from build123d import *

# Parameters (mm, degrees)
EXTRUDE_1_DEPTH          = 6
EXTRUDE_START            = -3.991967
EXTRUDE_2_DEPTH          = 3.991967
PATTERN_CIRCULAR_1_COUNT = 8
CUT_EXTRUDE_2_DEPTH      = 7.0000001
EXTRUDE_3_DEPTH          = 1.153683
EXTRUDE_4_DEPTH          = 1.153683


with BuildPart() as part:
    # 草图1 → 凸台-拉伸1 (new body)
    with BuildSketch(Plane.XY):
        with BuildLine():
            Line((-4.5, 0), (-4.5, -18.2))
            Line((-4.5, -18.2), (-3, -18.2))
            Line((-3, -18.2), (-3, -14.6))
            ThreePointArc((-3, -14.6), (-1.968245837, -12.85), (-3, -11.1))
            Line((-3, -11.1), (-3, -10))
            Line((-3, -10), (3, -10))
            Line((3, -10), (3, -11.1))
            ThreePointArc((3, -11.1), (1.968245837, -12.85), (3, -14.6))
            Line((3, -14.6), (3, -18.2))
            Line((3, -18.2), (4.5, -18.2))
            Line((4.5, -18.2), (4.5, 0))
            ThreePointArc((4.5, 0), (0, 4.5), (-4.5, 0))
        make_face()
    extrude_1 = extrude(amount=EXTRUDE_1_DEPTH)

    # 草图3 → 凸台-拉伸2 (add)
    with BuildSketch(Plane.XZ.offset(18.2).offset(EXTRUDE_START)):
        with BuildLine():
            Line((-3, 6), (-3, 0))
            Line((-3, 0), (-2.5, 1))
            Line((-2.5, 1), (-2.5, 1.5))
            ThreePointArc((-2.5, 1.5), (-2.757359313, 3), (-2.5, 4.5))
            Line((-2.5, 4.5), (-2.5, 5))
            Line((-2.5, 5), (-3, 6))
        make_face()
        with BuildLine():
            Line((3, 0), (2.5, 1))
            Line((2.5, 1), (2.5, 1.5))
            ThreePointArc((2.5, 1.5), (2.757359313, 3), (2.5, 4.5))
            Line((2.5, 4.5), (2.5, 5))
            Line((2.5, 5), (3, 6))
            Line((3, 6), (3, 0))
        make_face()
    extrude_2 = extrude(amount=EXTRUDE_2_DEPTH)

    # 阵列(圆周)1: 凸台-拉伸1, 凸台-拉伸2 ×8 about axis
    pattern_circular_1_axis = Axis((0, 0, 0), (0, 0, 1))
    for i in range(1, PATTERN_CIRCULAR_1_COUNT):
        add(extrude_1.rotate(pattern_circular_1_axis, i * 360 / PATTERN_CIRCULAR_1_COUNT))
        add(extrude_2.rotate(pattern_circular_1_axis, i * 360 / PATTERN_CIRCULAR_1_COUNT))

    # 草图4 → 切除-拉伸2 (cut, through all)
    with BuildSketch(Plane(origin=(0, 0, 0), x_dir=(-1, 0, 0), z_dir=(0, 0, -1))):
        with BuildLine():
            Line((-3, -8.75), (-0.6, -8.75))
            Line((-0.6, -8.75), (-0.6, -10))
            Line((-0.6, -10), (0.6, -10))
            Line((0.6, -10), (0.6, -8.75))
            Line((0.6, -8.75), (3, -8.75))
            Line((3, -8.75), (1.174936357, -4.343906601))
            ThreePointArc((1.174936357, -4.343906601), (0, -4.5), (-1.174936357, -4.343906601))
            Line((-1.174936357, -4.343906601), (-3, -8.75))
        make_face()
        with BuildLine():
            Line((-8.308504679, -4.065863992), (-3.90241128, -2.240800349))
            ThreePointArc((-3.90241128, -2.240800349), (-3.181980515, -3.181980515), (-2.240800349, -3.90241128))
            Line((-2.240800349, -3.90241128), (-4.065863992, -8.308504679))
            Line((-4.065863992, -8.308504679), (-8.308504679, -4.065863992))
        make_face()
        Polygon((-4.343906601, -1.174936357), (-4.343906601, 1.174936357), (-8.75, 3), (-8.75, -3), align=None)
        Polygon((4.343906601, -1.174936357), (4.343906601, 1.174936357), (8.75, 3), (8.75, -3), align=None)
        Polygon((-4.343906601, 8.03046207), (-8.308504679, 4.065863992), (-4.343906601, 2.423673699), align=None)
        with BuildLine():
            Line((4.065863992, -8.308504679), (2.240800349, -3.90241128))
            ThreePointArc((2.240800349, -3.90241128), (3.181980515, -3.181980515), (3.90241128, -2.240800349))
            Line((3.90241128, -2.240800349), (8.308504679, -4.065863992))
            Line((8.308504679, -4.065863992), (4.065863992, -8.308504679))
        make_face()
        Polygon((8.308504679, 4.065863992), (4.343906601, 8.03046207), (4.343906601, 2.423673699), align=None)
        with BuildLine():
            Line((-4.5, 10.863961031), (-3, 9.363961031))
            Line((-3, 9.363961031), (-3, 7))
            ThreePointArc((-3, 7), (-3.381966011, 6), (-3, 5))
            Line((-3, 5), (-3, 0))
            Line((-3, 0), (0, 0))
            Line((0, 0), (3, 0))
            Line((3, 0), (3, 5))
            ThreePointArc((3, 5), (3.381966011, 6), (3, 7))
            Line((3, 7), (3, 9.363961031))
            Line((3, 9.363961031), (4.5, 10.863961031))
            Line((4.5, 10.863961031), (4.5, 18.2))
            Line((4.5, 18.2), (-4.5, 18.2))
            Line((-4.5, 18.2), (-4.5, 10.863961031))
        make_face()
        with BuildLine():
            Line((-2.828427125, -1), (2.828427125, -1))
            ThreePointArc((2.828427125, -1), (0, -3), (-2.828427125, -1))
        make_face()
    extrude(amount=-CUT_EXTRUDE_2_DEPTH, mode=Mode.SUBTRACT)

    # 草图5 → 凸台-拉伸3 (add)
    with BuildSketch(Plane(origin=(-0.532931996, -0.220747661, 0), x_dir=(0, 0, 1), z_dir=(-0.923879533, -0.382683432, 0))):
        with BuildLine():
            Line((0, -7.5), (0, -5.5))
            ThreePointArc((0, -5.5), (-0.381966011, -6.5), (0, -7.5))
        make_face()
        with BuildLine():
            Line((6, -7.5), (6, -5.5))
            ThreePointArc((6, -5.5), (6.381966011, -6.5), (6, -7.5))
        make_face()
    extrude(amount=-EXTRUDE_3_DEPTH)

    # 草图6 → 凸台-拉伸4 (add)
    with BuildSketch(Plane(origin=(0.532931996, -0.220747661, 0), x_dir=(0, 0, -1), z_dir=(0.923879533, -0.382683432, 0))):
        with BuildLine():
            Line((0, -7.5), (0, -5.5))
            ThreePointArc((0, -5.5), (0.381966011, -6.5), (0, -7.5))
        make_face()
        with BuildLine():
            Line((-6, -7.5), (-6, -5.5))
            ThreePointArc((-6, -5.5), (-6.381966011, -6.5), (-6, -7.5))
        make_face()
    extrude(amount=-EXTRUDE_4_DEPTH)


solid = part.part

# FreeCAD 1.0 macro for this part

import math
import FreeCAD as App
import Part
import Sketcher
Q = App.Units.Quantity

doc = App.newDocument("Part")
params = doc.addObject("Spreadsheet::Sheet", "Params")
for row, (alias, value) in enumerate([
    ("sketch1_radius", "2 mm"),
    ("sketch1_radius2", "4.5 mm"),
    ("sketch1_width", "6 mm"),
    ("sketch1_height", "18.2 mm"),
    ("sketch1_height2", "3.6 mm"),
    ("pad1_length", "6 mm"),
    ("sketch2_radius", "4.5 mm"),
    ("sketch2_height", "6 mm"),
    ("sketch2_height2", "0.5 mm"),
    ("pad2_length", "3.991967 mm"),
    ("sketch3_radius", "3 mm"),
    ("sketch3_radius2", "4.5 mm"),
    ("sketch3_radius3", "1.5 mm"),
    ("sketch3_width", "6 mm"),
    ("sketch3_width2", "9 mm"),
    ("sketch4_radius", "1.5 mm"),
    ("sketch4_height", "2 mm"),
    ("pad3_length", "1.153683 mm"),
    ("sketch5_radius", "1.5 mm"),
    ("sketch5_height", "2 mm"),
    ("pad4_length", "1.153683 mm"),
], start=1):
    params.set(f"A{row}", alias)
    params.set(f"B{row}", "=" + value)
    params.setAlias(f"B{row}", alias)

body = doc.addObject("PartDesign::Body", "Body")

# Sketch on XY plane
sketch1 = body.newObject("Sketcher::SketchObject", "Sketch")
sketch1.AttachmentSupport = (doc.getObject("XY_Plane"), [""])
sketch1.MapMode = "FlatFace"
sketch1.addGeometry(Part.LineSegment(App.Vector(-4.5, 0, 0), App.Vector(-4.5, -18.2, 0)), False)
sketch1.addGeometry(Part.LineSegment(App.Vector(-4.5, -18.2, 0), App.Vector(-3, -18.2, 0)), False)
sketch1.addGeometry(Part.LineSegment(App.Vector(-3, -18.2, 0), App.Vector(-3, -14.6, 0)), False)
sketch1.addGeometry(Part.ArcOfCircle(Part.Circle(App.Vector(-3.968246, -12.85, 0), App.Vector(0, 0, 1), 2), math.radians(-61.044976), math.radians(61.044976)), False)
sketch1.addGeometry(Part.LineSegment(App.Vector(-3, -11.1, 0), App.Vector(-3, -10, 0)), False)
sketch1.addGeometry(Part.LineSegment(App.Vector(-3, -10, 0), App.Vector(3, -10, 0)), False)
sketch1.addGeometry(Part.LineSegment(App.Vector(3, -10, 0), App.Vector(3, -11.1, 0)), False)
sketch1.addGeometry(Part.ArcOfCircle(Part.Circle(App.Vector(3.968246, -12.85, 0), App.Vector(0, 0, 1), 2), math.radians(118.955024), math.radians(241.044976)), False)
sketch1.addGeometry(Part.LineSegment(App.Vector(3, -14.6, 0), App.Vector(3, -18.2, 0)), False)
sketch1.addGeometry(Part.LineSegment(App.Vector(3, -18.2, 0), App.Vector(4.5, -18.2, 0)), False)
sketch1.addGeometry(Part.LineSegment(App.Vector(4.5, -18.2, 0), App.Vector(4.5, 0, 0)), False)
sketch1.addGeometry(Part.ArcOfCircle(Part.Circle(App.Vector(0, 0, 0), App.Vector(0, 0, 1), 4.5), math.radians(0), math.radians(180)), False)
sketch1.addConstraint(Sketcher.Constraint("Coincident", 0, 2, 1, 1))
sketch1.addConstraint(Sketcher.Constraint("Coincident", 1, 2, 2, 1))
sketch1.addConstraint(Sketcher.Constraint("Coincident", 2, 2, 3, 1))
sketch1.addConstraint(Sketcher.Constraint("Coincident", 3, 2, 4, 1))
sketch1.addConstraint(Sketcher.Constraint("Coincident", 4, 2, 5, 1))
sketch1.addConstraint(Sketcher.Constraint("Coincident", 5, 2, 6, 1))
sketch1.addConstraint(Sketcher.Constraint("Coincident", 6, 2, 7, 1))
sketch1.addConstraint(Sketcher.Constraint("Coincident", 7, 2, 8, 1))
sketch1.addConstraint(Sketcher.Constraint("Coincident", 8, 2, 9, 1))
sketch1.addConstraint(Sketcher.Constraint("Coincident", 9, 2, 10, 1))
sketch1.addConstraint(Sketcher.Constraint("Tangent", 10, 2, 11, 1))
sketch1.addConstraint(Sketcher.Constraint("Tangent", 11, 2, 0, 1))
sketch1.addConstraint(Sketcher.Constraint("Vertical", 0))
sketch1.addConstraint(Sketcher.Constraint("Horizontal", 1))
sketch1.addConstraint(Sketcher.Constraint("Vertical", 2))
sketch1.addConstraint(Sketcher.Constraint("Vertical", 4))
sketch1.addConstraint(Sketcher.Constraint("Horizontal", 5))
sketch1.addConstraint(Sketcher.Constraint("Vertical", 6))
sketch1.addConstraint(Sketcher.Constraint("Vertical", 8))
sketch1.addConstraint(Sketcher.Constraint("Horizontal", 9))
sketch1.addConstraint(Sketcher.Constraint("Vertical", 10))
sketch1.addConstraint(Sketcher.Constraint("Coincident", 11, 3, -1, 1))
sketch1.addConstraint(Sketcher.Constraint("Equal", 3, 7))
sketch1.addConstraint(Sketcher.Constraint("Symmetric", 3, 3, 7, 3, -2))
sketch1.addConstraint(Sketcher.Constraint("Symmetric", 1, 2, 8, 2, -2))
sketch1.addConstraint(Sketcher.Constraint("Horizontal", 3, 2, 6, 2))
sketch1.addConstraint(Sketcher.Constraint("Vertical", 2, 2, 3, 2))
sketch1.addConstraint(Sketcher.Constraint("Radius", 3, 2.0))
sketch1.addConstraint(Sketcher.Constraint("Radius", 11, 4.5))
sketch1.addConstraint(Sketcher.Constraint("DistanceX", 5, 1, 5, 2, 6.0))
sketch1.addConstraint(Sketcher.Constraint("DistanceY", 0, 2, 0, 1, 18.2))
sketch1.addConstraint(Sketcher.Constraint("DistanceY", 2, 1, 2, 2, 3.6))
sketch1.addConstraint(Sketcher.Constraint("DistanceY", 4, 1, 4, 2, 1.1))
sketch1.addConstraint(Sketcher.Constraint("DistanceY", 4, 2, -1, 1, 10.0))
sketch1.setExpression("Constraints[27]", "Params.sketch1_radius")
sketch1.setExpression("Constraints[28]", "Params.sketch1_radius2")
sketch1.setExpression("Constraints[29]", "Params.sketch1_width")
sketch1.setExpression("Constraints[30]", "Params.sketch1_height")
sketch1.setExpression("Constraints[31]", "Params.sketch1_height2")
pad1 = body.newObject("PartDesign::Pad", "Pad")
pad1.Profile = sketch1
pad1.setExpression("Length", "Params.pad1_length")

# Sketch on XZ plane
sketch2 = body.newObject("Sketcher::SketchObject", "Sketch001")
sketch2.AttachmentSupport = (doc.getObject("XZ_Plane"), [""])
sketch2.MapMode = "FlatFace"
sketch2.AttachmentOffset = App.Placement(App.Vector(0, 0, 14.208033), App.Rotation())
sketch2.addGeometry(Part.LineSegment(App.Vector(-3, 6, 0), App.Vector(-3, 0, 0)), False)
sketch2.addGeometry(Part.LineSegment(App.Vector(-3, 0, 0), App.Vector(-2.5, 1, 0)), False)
sketch2.addGeometry(Part.LineSegment(App.Vector(-2.5, 1, 0), App.Vector(-2.5, 1.5, 0)), False)
sketch2.addGeometry(Part.ArcOfCircle(Part.Circle(App.Vector(1.742641, 3, 0), App.Vector(0, 0, 1), 4.5), math.radians(160.528779), math.radians(199.471221)), False)
sketch2.addGeometry(Part.LineSegment(App.Vector(-2.5, 4.5, 0), App.Vector(-2.5, 5, 0)), False)
sketch2.addGeometry(Part.LineSegment(App.Vector(-2.5, 5, 0), App.Vector(-3, 6, 0)), False)
sketch2.addGeometry(Part.LineSegment(App.Vector(2.5, 1, 0), App.Vector(3, 0, 0)), False)
sketch2.addGeometry(Part.LineSegment(App.Vector(3, 0, 0), App.Vector(3, 6, 0)), False)
sketch2.addGeometry(Part.LineSegment(App.Vector(3, 6, 0), App.Vector(2.5, 5, 0)), False)
sketch2.addGeometry(Part.LineSegment(App.Vector(2.5, 5, 0), App.Vector(2.5, 4.5, 0)), False)
sketch2.addGeometry(Part.ArcOfCircle(Part.Circle(App.Vector(-1.742641, 3, 0), App.Vector(0, 0, 1), 4.5), math.radians(-19.471221), math.radians(19.471221)), False)
sketch2.addGeometry(Part.LineSegment(App.Vector(2.5, 1.5, 0), App.Vector(2.5, 1, 0)), False)
sketch2.addConstraint(Sketcher.Constraint("Coincident", 0, 2, 1, 1))
sketch2.addConstraint(Sketcher.Constraint("Coincident", 1, 2, 2, 1))
sketch2.addConstraint(Sketcher.Constraint("Coincident", 2, 2, 3, 2))
sketch2.addConstraint(Sketcher.Constraint("Coincident", 3, 1, 4, 1))
sketch2.addConstraint(Sketcher.Constraint("Coincident", 4, 2, 5, 1))
sketch2.addConstraint(Sketcher.Constraint("Coincident", 5, 2, 0, 1))
sketch2.addConstraint(Sketcher.Constraint("Coincident", 6, 2, 7, 1))
sketch2.addConstraint(Sketcher.Constraint("Coincident", 7, 2, 8, 1))
sketch2.addConstraint(Sketcher.Constraint("Coincident", 8, 2, 9, 1))
sketch2.addConstraint(Sketcher.Constraint("Coincident", 9, 2, 10, 2))
sketch2.addConstraint(Sketcher.Constraint("Coincident", 10, 1, 11, 1))
sketch2.addConstraint(Sketcher.Constraint("Coincident", 11, 2, 6, 1))
sketch2.addConstraint(Sketcher.Constraint("Vertical", 0))
sketch2.addConstraint(Sketcher.Constraint("Vertical", 2))
sketch2.addConstraint(Sketcher.Constraint("Vertical", 4))
sketch2.addConstraint(Sketcher.Constraint("Vertical", 7))
sketch2.addConstraint(Sketcher.Constraint("Vertical", 9))
sketch2.addConstraint(Sketcher.Constraint("Vertical", 11))
sketch2.addConstraint(Sketcher.Constraint("Equal", 3, 10))
sketch2.addConstraint(Sketcher.Constraint("Symmetric", 0, 2, 6, 2, -1, 1))
sketch2.addConstraint(Sketcher.Constraint("Symmetric", 3, 3, 10, 3, -2))
sketch2.addConstraint(Sketcher.Constraint("Symmetric", 4, 2, 8, 2, -2))
sketch2.addConstraint(Sketcher.Constraint("Symmetric", 1, 2, 11, 2, -2))
sketch2.addConstraint(Sketcher.Constraint("PointOnObject", 0, 2, -1))
sketch2.addConstraint(Sketcher.Constraint("Parallel", 5, 6))
sketch2.addConstraint(Sketcher.Constraint("Parallel", 1, 8))
sketch2.addConstraint(Sketcher.Constraint("Vertical", 2, 2, 3, 1))
sketch2.addConstraint(Sketcher.Constraint("Equal", 2, 4))
sketch2.addConstraint(Sketcher.Constraint("Radius", 3, 4.5))
sketch2.addConstraint(Sketcher.Constraint("DistanceY", 0, 2, 0, 1, 6.0))
sketch2.addConstraint(Sketcher.Constraint("DistanceY", 2, 1, 2, 2, 0.5))
sketch2.addConstraint(Sketcher.Constraint("DistanceX", 0, 2, -1, 1, 3.0))
sketch2.addConstraint(Sketcher.Constraint("DistanceY", -1, 1, 1, 2, 1.0))
sketch2.addConstraint(Sketcher.Constraint("DistanceX", 4, 2, 8, 2, 5.0))
sketch2.setExpression("Constraints[28]", "Params.sketch2_radius")
sketch2.setExpression("Constraints[29]", "Params.sketch2_height")
sketch2.setExpression("Constraints[30]", "Params.sketch2_height2")
pad2 = body.newObject("PartDesign::Pad", "Pad001")
pad2.Profile = sketch2
pad2.setExpression("Length", "Params.pad2_length")
doc.recompute()

polarpattern = body.newObject("PartDesign::PolarPattern", "PolarPattern")
polarpattern.Originals = [pad1, pad2]
polarpattern.Axis = (doc.getObject("Z_Axis"), [""])
polarpattern.Angle = 360
polarpattern.Occurrences = 8
body.Tip = polarpattern

# Sketch on XY plane
sketch3 = body.newObject("Sketcher::SketchObject", "Sketch002")
sketch3.AttachmentSupport = (doc.getObject("XY_Plane"), [""])
sketch3.MapMode = "FlatFace"
sketch3.addGeometry(Part.LineSegment(App.Vector(3, -8.75, 0), App.Vector(0.6, -8.75, 0)), False)
sketch3.addGeometry(Part.LineSegment(App.Vector(0.6, -8.75, 0), App.Vector(0.6, -10, 0)), False)
sketch3.addGeometry(Part.LineSegment(App.Vector(0.6, -10, 0), App.Vector(-0.6, -10, 0)), False)
sketch3.addGeometry(Part.LineSegment(App.Vector(-0.6, -10, 0), App.Vector(-0.6, -8.75, 0)), False)
sketch3.addGeometry(Part.LineSegment(App.Vector(-0.6, -8.75, 0), App.Vector(-3, -8.75, 0)), False)
sketch3.addGeometry(Part.LineSegment(App.Vector(-3, -8.75, 0), App.Vector(-1.174936, -4.343907, 0)), False)
sketch3.addGeometry(Part.ArcOfCircle(Part.Circle(App.Vector(0, 0, 0), App.Vector(0, 0, 1), 4.5), math.radians(-105.135162), math.radians(-74.864838)), False)
sketch3.addGeometry(Part.LineSegment(App.Vector(1.174936, -4.343907, 0), App.Vector(3, -8.75, 0)), False)
sketch3.addGeometry(Part.LineSegment(App.Vector(3.902411, -2.2408, 0), App.Vector(8.308505, -4.065864, 0)), False)
sketch3.addGeometry(Part.LineSegment(App.Vector(8.308505, -4.065864, 0), App.Vector(4.065864, -8.308505, 0)), False)
sketch3.addGeometry(Part.LineSegment(App.Vector(4.065864, -8.308505, 0), App.Vector(2.2408, -3.902411, 0)), False)
sketch3.addGeometry(Part.ArcOfCircle(Part.Circle(App.Vector(0, 0, 0), App.Vector(0, 0, 1), 4.5), math.radians(-60.135162), math.radians(-29.864838)), False)
sketch3.addGeometry(Part.LineSegment(App.Vector(4.343907, -1.174936, 0), App.Vector(4.343907, 1.174936, 0)), False)
sketch3.addGeometry(Part.LineSegment(App.Vector(4.343907, 1.174936, 0), App.Vector(8.75, 3, 0)), False)
sketch3.addGeometry(Part.LineSegment(App.Vector(8.75, 3, 0), App.Vector(8.75, -3, 0)), False)
sketch3.addGeometry(Part.LineSegment(App.Vector(8.75, -3, 0), App.Vector(4.343907, -1.174936, 0)), False)
sketch3.addGeometry(Part.LineSegment(App.Vector(-4.343907, 1.174936, 0), App.Vector(-4.343907, -1.174936, 0)), False)
sketch3.addGeometry(Part.LineSegment(App.Vector(-4.343907, -1.174936, 0), App.Vector(-8.75, -3, 0)), False)
sketch3.addGeometry(Part.LineSegment(App.Vector(-8.75, -3, 0), App.Vector(-8.75, 3, 0)), False)
sketch3.addGeometry(Part.LineSegment(App.Vector(-8.75, 3, 0), App.Vector(-4.343907, 1.174936, 0)), False)
sketch3.addGeometry(Part.LineSegment(App.Vector(4.343907, 8.030462, 0), App.Vector(8.308505, 4.065864, 0)), False)
sketch3.addGeometry(Part.LineSegment(App.Vector(8.308505, 4.065864, 0), App.Vector(4.343907, 2.423674, 0)), False)
sketch3.addGeometry(Part.LineSegment(App.Vector(4.343907, 2.423674, 0), App.Vector(4.343907, 8.030462, 0)), False)
sketch3.addGeometry(Part.LineSegment(App.Vector(-2.2408, -3.902411, 0), App.Vector(-4.065864, -8.308505, 0)), False)
sketch3.addGeometry(Part.LineSegment(App.Vector(-4.065864, -8.308505, 0), App.Vector(-8.308505, -4.065864, 0)), False)
sketch3.addGeometry(Part.LineSegment(App.Vector(-8.308505, -4.065864, 0), App.Vector(-3.902411, -2.2408, 0)), False)
sketch3.addGeometry(Part.ArcOfCircle(Part.Circle(App.Vector(0, 0, 0), App.Vector(0, 0, 1), 4.5), math.radians(-150.135162), math.radians(-119.864838)), False)
sketch3.addGeometry(Part.LineSegment(App.Vector(-8.308505, 4.065864, 0), App.Vector(-4.343907, 8.030462, 0)), False)
sketch3.addGeometry(Part.LineSegment(App.Vector(-4.343907, 8.030462, 0), App.Vector(-4.343907, 2.423674, 0)), False)
sketch3.addGeometry(Part.LineSegment(App.Vector(-4.343907, 2.423674, 0), App.Vector(-8.308505, 4.065864, 0)), False)
sketch3.addGeometry(Part.LineSegment(App.Vector(4.5, 10.863961, 0), App.Vector(3, 9.363961, 0)), False)
sketch3.addGeometry(Part.LineSegment(App.Vector(3, 9.363961, 0), App.Vector(3, 7, 0)), False)
sketch3.addGeometry(Part.ArcOfCircle(Part.Circle(App.Vector(1.881966, 6, 0), App.Vector(0, 0, 1), 1.5), math.radians(-41.810315), math.radians(41.810315)), False)
sketch3.addGeometry(Part.LineSegment(App.Vector(3, 5, 0), App.Vector(3, 0, 0)), False)
sketch3.addGeometry(Part.LineSegment(App.Vector(3, 0, 0), App.Vector(-3, 0, 0)), False)
sketch3.addGeometry(Part.LineSegment(App.Vector(-3, 0, 0), App.Vector(-3, 5, 0)), False)
sketch3.addGeometry(Part.ArcOfCircle(Part.Circle(App.Vector(-1.881966, 6, 0), App.Vector(0, 0, 1), 1.5), math.radians(138.189685), math.radians(221.810315)), False)
sketch3.addGeometry(Part.LineSegment(App.Vector(-3, 7, 0), App.Vector(-3, 9.363961, 0)), False)
sketch3.addGeometry(Part.LineSegment(App.Vector(-3, 9.363961, 0), App.Vector(-4.5, 10.863961, 0)), False)
sketch3.addGeometry(Part.LineSegment(App.Vector(-4.5, 10.863961, 0), App.Vector(-4.5, 18.2, 0)), False)
sketch3.addGeometry(Part.LineSegment(App.Vector(-4.5, 18.2, 0), App.Vector(4.5, 18.2, 0)), False)
sketch3.addGeometry(Part.LineSegment(App.Vector(4.5, 18.2, 0), App.Vector(4.5, 10.863961, 0)), False)
sketch3.addGeometry(Part.LineSegment(App.Vector(-2.828427, -1, 0), App.Vector(2.828427, -1, 0)), False)
sketch3.addGeometry(Part.ArcOfCircle(Part.Circle(App.Vector(0, 0, 0), App.Vector(0, 0, 1), 3), math.radians(-160.528779), math.radians(-19.471221)), False)
sketch3.addConstraint(Sketcher.Constraint("Coincident", 0, 2, 1, 1))
sketch3.addConstraint(Sketcher.Constraint("Coincident", 1, 2, 2, 1))
sketch3.addConstraint(Sketcher.Constraint("Coincident", 2, 2, 3, 1))
sketch3.addConstraint(Sketcher.Constraint("Coincident", 3, 2, 4, 1))
sketch3.addConstraint(Sketcher.Constraint("Coincident", 4, 2, 5, 1))
sketch3.addConstraint(Sketcher.Constraint("Coincident", 5, 2, 6, 1))
sketch3.addConstraint(Sketcher.Constraint("Coincident", 6, 2, 7, 1))
sketch3.addConstraint(Sketcher.Constraint("Coincident", 7, 2, 0, 1))
sketch3.addConstraint(Sketcher.Constraint("Coincident", 8, 2, 9, 1))
sketch3.addConstraint(Sketcher.Constraint("Coincident", 9, 2, 10, 1))
sketch3.addConstraint(Sketcher.Constraint("Coincident", 10, 2, 11, 1))
sketch3.addConstraint(Sketcher.Constraint("Coincident", 11, 2, 8, 1))
sketch3.addConstraint(Sketcher.Constraint("Coincident", 12, 2, 13, 1))
sketch3.addConstraint(Sketcher.Constraint("Coincident", 13, 2, 14, 1))
sketch3.addConstraint(Sketcher.Constraint("Coincident", 14, 2, 15, 1))
sketch3.addConstraint(Sketcher.Constraint("Coincident", 15, 2, 12, 1))
sketch3.addConstraint(Sketcher.Constraint("Coincident", 16, 2, 17, 1))
sketch3.addConstraint(Sketcher.Constraint("Coincident", 17, 2, 18, 1))
sketch3.addConstraint(Sketcher.Constraint("Coincident", 18, 2, 19, 1))
sketch3.addConstraint(Sketcher.Constraint("Coincident", 19, 2, 16, 1))
sketch3.addConstraint(Sketcher.Constraint("Coincident", 20, 2, 21, 1))
sketch3.addConstraint(Sketcher.Constraint("Coincident", 21, 2, 22, 1))
sketch3.addConstraint(Sketcher.Constraint("Coincident", 22, 2, 20, 1))
sketch3.addConstraint(Sketcher.Constraint("Coincident", 23, 2, 24, 1))
sketch3.addConstraint(Sketcher.Constraint("Coincident", 24, 2, 25, 1))
sketch3.addConstraint(Sketcher.Constraint("Coincident", 25, 2, 26, 1))
sketch3.addConstraint(Sketcher.Constraint("Coincident", 26, 2, 23, 1))
sketch3.addConstraint(Sketcher.Constraint("Coincident", 27, 2, 28, 1))
sketch3.addConstraint(Sketcher.Constraint("Coincident", 28, 2, 29, 1))
sketch3.addConstraint(Sketcher.Constraint("Coincident", 29, 2, 27, 1))
sketch3.addConstraint(Sketcher.Constraint("Coincident", 30, 2, 31, 1))
sketch3.addConstraint(Sketcher.Constraint("Coincident", 31, 2, 32, 2))
sketch3.addConstraint(Sketcher.Constraint("Coincident", 32, 1, 33, 1))
sketch3.addConstraint(Sketcher.Constraint("Coincident", 33, 2, 34, 1))
sketch3.addConstraint(Sketcher.Constraint("Coincident", 34, 2, 35, 1))
sketch3.addConstraint(Sketcher.Constraint("Coincident", 35, 2, 36, 2))
sketch3.addConstraint(Sketcher.Constraint("Coincident", 36, 1, 37, 1))
sketch3.addConstraint(Sketcher.Constraint("Coincident", 37, 2, 38, 1))
sketch3.addConstraint(Sketcher.Constraint("Coincident", 38, 2, 39, 1))
sketch3.addConstraint(Sketcher.Constraint("Coincident", 39, 2, 40, 1))
sketch3.addConstraint(Sketcher.Constraint("Coincident", 40, 2, 41, 1))
sketch3.addConstraint(Sketcher.Constraint("Coincident", 41, 2, 30, 1))
sketch3.addConstraint(Sketcher.Constraint("Coincident", 42, 1, 43, 1))
sketch3.addConstraint(Sketcher.Constraint("Coincident", 43, 2, 42, 2))
sketch3.addConstraint(Sketcher.Constraint("Horizontal", 0))
sketch3.addConstraint(Sketcher.Constraint("Vertical", 1))
sketch3.addConstraint(Sketcher.Constraint("Horizontal", 2))
sketch3.addConstraint(Sketcher.Constraint("Vertical", 3))
sketch3.addConstraint(Sketcher.Constraint("Horizontal", 4))
sketch3.addConstraint(Sketcher.Constraint("Vertical", 12))
sketch3.addConstraint(Sketcher.Constraint("Vertical", 14))
sketch3.addConstraint(Sketcher.Constraint("Vertical", 16))
sketch3.addConstraint(Sketcher.Constraint("Vertical", 18))
sketch3.addConstraint(Sketcher.Constraint("Vertical", 22))
sketch3.addConstraint(Sketcher.Constraint("Vertical", 28))
sketch3.addConstraint(Sketcher.Constraint("Vertical", 31))
sketch3.addConstraint(Sketcher.Constraint("Vertical", 33))
sketch3.addConstraint(Sketcher.Constraint("Horizontal", 34))
sketch3.addConstraint(Sketcher.Constraint("Vertical", 35))
sketch3.addConstraint(Sketcher.Constraint("Vertical", 37))
sketch3.addConstraint(Sketcher.Constraint("Vertical", 39))
sketch3.addConstraint(Sketcher.Constraint("Horizontal", 40))
sketch3.addConstraint(Sketcher.Constraint("Vertical", 41))
sketch3.addConstraint(Sketcher.Constraint("Horizontal", 42))
sketch3.addConstraint(Sketcher.Constraint("Coincident", 6, 3, -1, 1))
sketch3.addConstraint(Sketcher.Constraint("Coincident", 11, 3, -1, 1))
sketch3.addConstraint(Sketcher.Constraint("Coincident", 26, 3, -1, 1))
sketch3.addConstraint(Sketcher.Constraint("Coincident", 43, 3, -1, 1))
sketch3.addConstraint(Sketcher.Constraint("Equal", 6, 11))
sketch3.addConstraint(Sketcher.Constraint("Equal", 11, 26))
sketch3.addConstraint(Sketcher.Constraint("Equal", 32, 36))
sketch3.addConstraint(Sketcher.Constraint("Symmetric", 12, 2, 16, 2, -1, 1))
sketch3.addConstraint(Sketcher.Constraint("Symmetric", 13, 2, 17, 2, -1, 1))
sketch3.addConstraint(Sketcher.Constraint("Symmetric", 20, 2, 24, 2, -1, 1))
sketch3.addConstraint(Sketcher.Constraint("Symmetric", 8, 2, 29, 2, -1, 1))
sketch3.addConstraint(Sketcher.Constraint("Symmetric", 33, 2, 34, 2, -1, 1))
sketch3.addConstraint(Sketcher.Constraint("Symmetric", 32, 3, 36, 3, -2))
sketch3.addConstraint(Sketcher.Constraint("Symmetric", 0, 2, 3, 2, -2))
sketch3.addConstraint(Sketcher.Constraint("Symmetric", 9, 2, 23, 2, -2))
sketch3.addConstraint(Sketcher.Constraint("Symmetric", 8, 2, 24, 2, -2))
sketch3.addConstraint(Sketcher.Constraint("Symmetric", 22, 2, 27, 2, -2))
sketch3.addConstraint(Sketcher.Constraint("Symmetric", 30, 2, 37, 2, -2))
sketch3.addConstraint(Sketcher.Constraint("Symmetric", 38, 2, 41, 2, -2))
sketch3.addConstraint(Sketcher.Constraint("Perpendicular", 5, 8))
sketch3.addConstraint(Sketcher.Constraint("Parallel", 7, 10))
sketch3.addConstraint(Sketcher.Constraint("Perpendicular", 10, 13))
sketch3.addConstraint(Sketcher.Constraint("Parallel", 8, 15))
sketch3.addConstraint(Sketcher.Constraint("Parallel", 15, 19))
sketch3.addConstraint(Sketcher.Constraint("Perpendicular", 9, 20))
sketch3.addConstraint(Sketcher.Constraint("Parallel", 17, 21))
sketch3.addConstraint(Sketcher.Constraint("Perpendicular", 19, 23))
sketch3.addConstraint(Sketcher.Constraint("Parallel", 20, 24))
sketch3.addConstraint(Sketcher.Constraint("Parallel", 21, 25))
sketch3.addConstraint(Sketcher.Constraint("Perpendicular", 23, 29))
sketch3.addConstraint(Sketcher.Constraint("Parallel", 27, 30))
sketch3.addConstraint(Sketcher.Constraint("Horizontal", 5, 2, 6, 2))
sketch3.addConstraint(Sketcher.Constraint("Horizontal", 15, 2, 16, 2))
sketch3.addConstraint(Sketcher.Constraint("Horizontal", 14, 2, 17, 2))
sketch3.addConstraint(Sketcher.Constraint("Horizontal", 13, 2, 18, 2))
sketch3.addConstraint(Sketcher.Constraint("Vertical", 15, 2, 21, 2))
sketch3.addConstraint(Sketcher.Constraint("Vertical", 7, 2, 30, 2))
sketch3.addConstraint(Sketcher.Constraint("Vertical", 31, 2, 32, 1))
sketch3.addConstraint(Sketcher.Constraint("Equal", 34, 14))
sketch3.addConstraint(Sketcher.Constraint("Equal", 7, 8))
sketch3.addConstraint(Sketcher.Constraint("Equal", 8, 10))
sketch3.addConstraint(Sketcher.Constraint("Equal", 10, 13))
sketch3.addConstraint(Sketcher.Constraint("Radius", 43, 3.0))
sketch3.addConstraint(Sketcher.Constraint("Radius", 6, 4.5))
sketch3.addConstraint(Sketcher.Constraint("Radius", 32, 1.5))
sketch3.addConstraint(Sketcher.Constraint("DistanceX", 34, 2, 34, 1, 6.0))
sketch3.addConstraint(Sketcher.Constraint("DistanceX", 40, 1, 40, 2, 9.0))
sketch3.addConstraint(Sketcher.Constraint("DistanceY", 33, 2, 33, 1, 5.0))
sketch3.addConstraint(Sketcher.Constraint("Distance", 9, 6.0))
sketch3.addConstraint(Sketcher.Constraint("DistanceX", 0, 2, 0, 1, 2.4))
sketch3.addConstraint(Sketcher.Constraint("DistanceY", -1, 1, 32, 3, 6.0))
sketch3.addConstraint(Sketcher.Constraint("DistanceY", 1, 2, -1, 1, 10.0))
sketch3.addConstraint(Sketcher.Constraint("DistanceY", 42, 1, -1, 1, 1.0))
sketch3.addConstraint(Sketcher.Constraint("Angle", 5, Q("67.5 deg")))
sketch3.addConstraint(Sketcher.Constraint("DistanceY", 1, 2, 1, 1, 1.25))
sketch3.addConstraint(Sketcher.Constraint("DistanceY", -1, 1, 39, 2, 18.2))
sketch3.addConstraint(Sketcher.Constraint("DistanceX", -1, 1, 13, 2, 8.75))
sketch3.addConstraint(Sketcher.Constraint("DistanceY", 31, 2, 31, 1, 2.363961))
sketch3.setExpression("Constraints[106]", "Params.sketch3_radius")
sketch3.setExpression("Constraints[107]", "Params.sketch3_radius2")
sketch3.setExpression("Constraints[108]", "Params.sketch3_radius3")
sketch3.setExpression("Constraints[109]", "Params.sketch3_width")
sketch3.setExpression("Constraints[110]", "Params.sketch3_width2")
pocket1 = body.newObject("PartDesign::Pocket", "Pocket")
pocket1.Profile = sketch3
pocket1.Type = "ThroughAll"
pocket1.Reversed = True

# Sketch on an angled plane
sketch4 = body.newObject("Sketcher::SketchObject", "Sketch003")
sketch4.Placement = App.Placement(App.Vector(-0.532932, -0.220748, 0), App.Rotation(App.Vector(0, 0, 1), App.Vector(-0.382683432, 0.923879533, 0), App.Vector(-0.923879533, -0.382683432, 0), "ZXY"))
sketch4.addGeometry(Part.LineSegment(App.Vector(0, -7.5, 0), App.Vector(0, -5.5, 0)), False)
sketch4.addGeometry(Part.ArcOfCircle(Part.Circle(App.Vector(1.118034, -6.5, 0), App.Vector(0, 0, 1), 1.5), math.radians(138.189685), math.radians(221.810315)), False)
sketch4.addGeometry(Part.LineSegment(App.Vector(6, -5.5, 0), App.Vector(6, -7.5, 0)), False)
sketch4.addGeometry(Part.ArcOfCircle(Part.Circle(App.Vector(4.881966, -6.5, 0), App.Vector(0, 0, 1), 1.5), math.radians(-41.810315), math.radians(41.810315)), False)
sketch4.addConstraint(Sketcher.Constraint("Coincident", 0, 1, 1, 2))
sketch4.addConstraint(Sketcher.Constraint("Coincident", 1, 1, 0, 2))
sketch4.addConstraint(Sketcher.Constraint("Coincident", 2, 1, 3, 2))
sketch4.addConstraint(Sketcher.Constraint("Coincident", 3, 1, 2, 2))
sketch4.addConstraint(Sketcher.Constraint("Vertical", 0))
sketch4.addConstraint(Sketcher.Constraint("Vertical", 2))
sketch4.addConstraint(Sketcher.Constraint("Equal", 1, 3))
sketch4.addConstraint(Sketcher.Constraint("PointOnObject", 0, 1, -2))
sketch4.addConstraint(Sketcher.Constraint("Horizontal", 1, 3, 3, 3))
sketch4.addConstraint(Sketcher.Constraint("Horizontal", 1, 1, 2, 1))
sketch4.addConstraint(Sketcher.Constraint("Radius", 1, 1.5))
sketch4.addConstraint(Sketcher.Constraint("DistanceY", 0, 1, 0, 2, 2.0))
sketch4.addConstraint(Sketcher.Constraint("DistanceX", -1, 1, 2, 1, 6.0))
sketch4.addConstraint(Sketcher.Constraint("DistanceY", 1, 3, -1, 1, 6.5))
sketch4.setExpression("Constraints[10]", "Params.sketch4_radius")
sketch4.setExpression("Constraints[11]", "Params.sketch4_height")
pad3 = body.newObject("PartDesign::Pad", "Pad002")
pad3.Profile = sketch4
pad3.setExpression("Length", "Params.pad3_length")
pad3.Reversed = True

# Sketch on an angled plane
sketch5 = body.newObject("Sketcher::SketchObject", "Sketch004")
sketch5.Placement = App.Placement(App.Vector(0.532932, -0.220748, 0), App.Rotation(App.Vector(0, 0, -1), App.Vector(0.382683432, 0.923879533, 0), App.Vector(0.923879533, -0.382683432, 0), "ZXY"))
sketch5.addGeometry(Part.LineSegment(App.Vector(0, -5.5, 0), App.Vector(0, -7.5, 0)), False)
sketch5.addGeometry(Part.ArcOfCircle(Part.Circle(App.Vector(-1.118034, -6.5, 0), App.Vector(0, 0, 1), 1.5), math.radians(-41.810315), math.radians(41.810315)), False)
sketch5.addGeometry(Part.LineSegment(App.Vector(-6, -7.5, 0), App.Vector(-6, -5.5, 0)), False)
sketch5.addGeometry(Part.ArcOfCircle(Part.Circle(App.Vector(-4.881966, -6.5, 0), App.Vector(0, 0, 1), 1.5), math.radians(138.189685), math.radians(221.810315)), False)
sketch5.addConstraint(Sketcher.Constraint("Coincident", 0, 1, 1, 2))
sketch5.addConstraint(Sketcher.Constraint("Coincident", 1, 1, 0, 2))
sketch5.addConstraint(Sketcher.Constraint("Coincident", 2, 1, 3, 2))
sketch5.addConstraint(Sketcher.Constraint("Coincident", 3, 1, 2, 2))
sketch5.addConstraint(Sketcher.Constraint("Vertical", 0))
sketch5.addConstraint(Sketcher.Constraint("Vertical", 2))
sketch5.addConstraint(Sketcher.Constraint("Equal", 1, 3))
sketch5.addConstraint(Sketcher.Constraint("PointOnObject", 0, 1, -2))
sketch5.addConstraint(Sketcher.Constraint("Horizontal", 1, 3, 3, 3))
sketch5.addConstraint(Sketcher.Constraint("Horizontal", 1, 1, 2, 1))
sketch5.addConstraint(Sketcher.Constraint("Radius", 1, 1.5))
sketch5.addConstraint(Sketcher.Constraint("DistanceY", 0, 2, 0, 1, 2.0))
sketch5.addConstraint(Sketcher.Constraint("DistanceX", 2, 1, -1, 1, 6.0))
sketch5.addConstraint(Sketcher.Constraint("DistanceY", 1, 3, -1, 1, 6.5))
sketch5.setExpression("Constraints[10]", "Params.sketch5_radius")
sketch5.setExpression("Constraints[11]", "Params.sketch5_height")
pad4 = body.newObject("PartDesign::Pad", "Pad003")
pad4.Profile = sketch5
pad4.setExpression("Length", "Params.pad4_length")
pad4.Reversed = True

doc.recompute()
